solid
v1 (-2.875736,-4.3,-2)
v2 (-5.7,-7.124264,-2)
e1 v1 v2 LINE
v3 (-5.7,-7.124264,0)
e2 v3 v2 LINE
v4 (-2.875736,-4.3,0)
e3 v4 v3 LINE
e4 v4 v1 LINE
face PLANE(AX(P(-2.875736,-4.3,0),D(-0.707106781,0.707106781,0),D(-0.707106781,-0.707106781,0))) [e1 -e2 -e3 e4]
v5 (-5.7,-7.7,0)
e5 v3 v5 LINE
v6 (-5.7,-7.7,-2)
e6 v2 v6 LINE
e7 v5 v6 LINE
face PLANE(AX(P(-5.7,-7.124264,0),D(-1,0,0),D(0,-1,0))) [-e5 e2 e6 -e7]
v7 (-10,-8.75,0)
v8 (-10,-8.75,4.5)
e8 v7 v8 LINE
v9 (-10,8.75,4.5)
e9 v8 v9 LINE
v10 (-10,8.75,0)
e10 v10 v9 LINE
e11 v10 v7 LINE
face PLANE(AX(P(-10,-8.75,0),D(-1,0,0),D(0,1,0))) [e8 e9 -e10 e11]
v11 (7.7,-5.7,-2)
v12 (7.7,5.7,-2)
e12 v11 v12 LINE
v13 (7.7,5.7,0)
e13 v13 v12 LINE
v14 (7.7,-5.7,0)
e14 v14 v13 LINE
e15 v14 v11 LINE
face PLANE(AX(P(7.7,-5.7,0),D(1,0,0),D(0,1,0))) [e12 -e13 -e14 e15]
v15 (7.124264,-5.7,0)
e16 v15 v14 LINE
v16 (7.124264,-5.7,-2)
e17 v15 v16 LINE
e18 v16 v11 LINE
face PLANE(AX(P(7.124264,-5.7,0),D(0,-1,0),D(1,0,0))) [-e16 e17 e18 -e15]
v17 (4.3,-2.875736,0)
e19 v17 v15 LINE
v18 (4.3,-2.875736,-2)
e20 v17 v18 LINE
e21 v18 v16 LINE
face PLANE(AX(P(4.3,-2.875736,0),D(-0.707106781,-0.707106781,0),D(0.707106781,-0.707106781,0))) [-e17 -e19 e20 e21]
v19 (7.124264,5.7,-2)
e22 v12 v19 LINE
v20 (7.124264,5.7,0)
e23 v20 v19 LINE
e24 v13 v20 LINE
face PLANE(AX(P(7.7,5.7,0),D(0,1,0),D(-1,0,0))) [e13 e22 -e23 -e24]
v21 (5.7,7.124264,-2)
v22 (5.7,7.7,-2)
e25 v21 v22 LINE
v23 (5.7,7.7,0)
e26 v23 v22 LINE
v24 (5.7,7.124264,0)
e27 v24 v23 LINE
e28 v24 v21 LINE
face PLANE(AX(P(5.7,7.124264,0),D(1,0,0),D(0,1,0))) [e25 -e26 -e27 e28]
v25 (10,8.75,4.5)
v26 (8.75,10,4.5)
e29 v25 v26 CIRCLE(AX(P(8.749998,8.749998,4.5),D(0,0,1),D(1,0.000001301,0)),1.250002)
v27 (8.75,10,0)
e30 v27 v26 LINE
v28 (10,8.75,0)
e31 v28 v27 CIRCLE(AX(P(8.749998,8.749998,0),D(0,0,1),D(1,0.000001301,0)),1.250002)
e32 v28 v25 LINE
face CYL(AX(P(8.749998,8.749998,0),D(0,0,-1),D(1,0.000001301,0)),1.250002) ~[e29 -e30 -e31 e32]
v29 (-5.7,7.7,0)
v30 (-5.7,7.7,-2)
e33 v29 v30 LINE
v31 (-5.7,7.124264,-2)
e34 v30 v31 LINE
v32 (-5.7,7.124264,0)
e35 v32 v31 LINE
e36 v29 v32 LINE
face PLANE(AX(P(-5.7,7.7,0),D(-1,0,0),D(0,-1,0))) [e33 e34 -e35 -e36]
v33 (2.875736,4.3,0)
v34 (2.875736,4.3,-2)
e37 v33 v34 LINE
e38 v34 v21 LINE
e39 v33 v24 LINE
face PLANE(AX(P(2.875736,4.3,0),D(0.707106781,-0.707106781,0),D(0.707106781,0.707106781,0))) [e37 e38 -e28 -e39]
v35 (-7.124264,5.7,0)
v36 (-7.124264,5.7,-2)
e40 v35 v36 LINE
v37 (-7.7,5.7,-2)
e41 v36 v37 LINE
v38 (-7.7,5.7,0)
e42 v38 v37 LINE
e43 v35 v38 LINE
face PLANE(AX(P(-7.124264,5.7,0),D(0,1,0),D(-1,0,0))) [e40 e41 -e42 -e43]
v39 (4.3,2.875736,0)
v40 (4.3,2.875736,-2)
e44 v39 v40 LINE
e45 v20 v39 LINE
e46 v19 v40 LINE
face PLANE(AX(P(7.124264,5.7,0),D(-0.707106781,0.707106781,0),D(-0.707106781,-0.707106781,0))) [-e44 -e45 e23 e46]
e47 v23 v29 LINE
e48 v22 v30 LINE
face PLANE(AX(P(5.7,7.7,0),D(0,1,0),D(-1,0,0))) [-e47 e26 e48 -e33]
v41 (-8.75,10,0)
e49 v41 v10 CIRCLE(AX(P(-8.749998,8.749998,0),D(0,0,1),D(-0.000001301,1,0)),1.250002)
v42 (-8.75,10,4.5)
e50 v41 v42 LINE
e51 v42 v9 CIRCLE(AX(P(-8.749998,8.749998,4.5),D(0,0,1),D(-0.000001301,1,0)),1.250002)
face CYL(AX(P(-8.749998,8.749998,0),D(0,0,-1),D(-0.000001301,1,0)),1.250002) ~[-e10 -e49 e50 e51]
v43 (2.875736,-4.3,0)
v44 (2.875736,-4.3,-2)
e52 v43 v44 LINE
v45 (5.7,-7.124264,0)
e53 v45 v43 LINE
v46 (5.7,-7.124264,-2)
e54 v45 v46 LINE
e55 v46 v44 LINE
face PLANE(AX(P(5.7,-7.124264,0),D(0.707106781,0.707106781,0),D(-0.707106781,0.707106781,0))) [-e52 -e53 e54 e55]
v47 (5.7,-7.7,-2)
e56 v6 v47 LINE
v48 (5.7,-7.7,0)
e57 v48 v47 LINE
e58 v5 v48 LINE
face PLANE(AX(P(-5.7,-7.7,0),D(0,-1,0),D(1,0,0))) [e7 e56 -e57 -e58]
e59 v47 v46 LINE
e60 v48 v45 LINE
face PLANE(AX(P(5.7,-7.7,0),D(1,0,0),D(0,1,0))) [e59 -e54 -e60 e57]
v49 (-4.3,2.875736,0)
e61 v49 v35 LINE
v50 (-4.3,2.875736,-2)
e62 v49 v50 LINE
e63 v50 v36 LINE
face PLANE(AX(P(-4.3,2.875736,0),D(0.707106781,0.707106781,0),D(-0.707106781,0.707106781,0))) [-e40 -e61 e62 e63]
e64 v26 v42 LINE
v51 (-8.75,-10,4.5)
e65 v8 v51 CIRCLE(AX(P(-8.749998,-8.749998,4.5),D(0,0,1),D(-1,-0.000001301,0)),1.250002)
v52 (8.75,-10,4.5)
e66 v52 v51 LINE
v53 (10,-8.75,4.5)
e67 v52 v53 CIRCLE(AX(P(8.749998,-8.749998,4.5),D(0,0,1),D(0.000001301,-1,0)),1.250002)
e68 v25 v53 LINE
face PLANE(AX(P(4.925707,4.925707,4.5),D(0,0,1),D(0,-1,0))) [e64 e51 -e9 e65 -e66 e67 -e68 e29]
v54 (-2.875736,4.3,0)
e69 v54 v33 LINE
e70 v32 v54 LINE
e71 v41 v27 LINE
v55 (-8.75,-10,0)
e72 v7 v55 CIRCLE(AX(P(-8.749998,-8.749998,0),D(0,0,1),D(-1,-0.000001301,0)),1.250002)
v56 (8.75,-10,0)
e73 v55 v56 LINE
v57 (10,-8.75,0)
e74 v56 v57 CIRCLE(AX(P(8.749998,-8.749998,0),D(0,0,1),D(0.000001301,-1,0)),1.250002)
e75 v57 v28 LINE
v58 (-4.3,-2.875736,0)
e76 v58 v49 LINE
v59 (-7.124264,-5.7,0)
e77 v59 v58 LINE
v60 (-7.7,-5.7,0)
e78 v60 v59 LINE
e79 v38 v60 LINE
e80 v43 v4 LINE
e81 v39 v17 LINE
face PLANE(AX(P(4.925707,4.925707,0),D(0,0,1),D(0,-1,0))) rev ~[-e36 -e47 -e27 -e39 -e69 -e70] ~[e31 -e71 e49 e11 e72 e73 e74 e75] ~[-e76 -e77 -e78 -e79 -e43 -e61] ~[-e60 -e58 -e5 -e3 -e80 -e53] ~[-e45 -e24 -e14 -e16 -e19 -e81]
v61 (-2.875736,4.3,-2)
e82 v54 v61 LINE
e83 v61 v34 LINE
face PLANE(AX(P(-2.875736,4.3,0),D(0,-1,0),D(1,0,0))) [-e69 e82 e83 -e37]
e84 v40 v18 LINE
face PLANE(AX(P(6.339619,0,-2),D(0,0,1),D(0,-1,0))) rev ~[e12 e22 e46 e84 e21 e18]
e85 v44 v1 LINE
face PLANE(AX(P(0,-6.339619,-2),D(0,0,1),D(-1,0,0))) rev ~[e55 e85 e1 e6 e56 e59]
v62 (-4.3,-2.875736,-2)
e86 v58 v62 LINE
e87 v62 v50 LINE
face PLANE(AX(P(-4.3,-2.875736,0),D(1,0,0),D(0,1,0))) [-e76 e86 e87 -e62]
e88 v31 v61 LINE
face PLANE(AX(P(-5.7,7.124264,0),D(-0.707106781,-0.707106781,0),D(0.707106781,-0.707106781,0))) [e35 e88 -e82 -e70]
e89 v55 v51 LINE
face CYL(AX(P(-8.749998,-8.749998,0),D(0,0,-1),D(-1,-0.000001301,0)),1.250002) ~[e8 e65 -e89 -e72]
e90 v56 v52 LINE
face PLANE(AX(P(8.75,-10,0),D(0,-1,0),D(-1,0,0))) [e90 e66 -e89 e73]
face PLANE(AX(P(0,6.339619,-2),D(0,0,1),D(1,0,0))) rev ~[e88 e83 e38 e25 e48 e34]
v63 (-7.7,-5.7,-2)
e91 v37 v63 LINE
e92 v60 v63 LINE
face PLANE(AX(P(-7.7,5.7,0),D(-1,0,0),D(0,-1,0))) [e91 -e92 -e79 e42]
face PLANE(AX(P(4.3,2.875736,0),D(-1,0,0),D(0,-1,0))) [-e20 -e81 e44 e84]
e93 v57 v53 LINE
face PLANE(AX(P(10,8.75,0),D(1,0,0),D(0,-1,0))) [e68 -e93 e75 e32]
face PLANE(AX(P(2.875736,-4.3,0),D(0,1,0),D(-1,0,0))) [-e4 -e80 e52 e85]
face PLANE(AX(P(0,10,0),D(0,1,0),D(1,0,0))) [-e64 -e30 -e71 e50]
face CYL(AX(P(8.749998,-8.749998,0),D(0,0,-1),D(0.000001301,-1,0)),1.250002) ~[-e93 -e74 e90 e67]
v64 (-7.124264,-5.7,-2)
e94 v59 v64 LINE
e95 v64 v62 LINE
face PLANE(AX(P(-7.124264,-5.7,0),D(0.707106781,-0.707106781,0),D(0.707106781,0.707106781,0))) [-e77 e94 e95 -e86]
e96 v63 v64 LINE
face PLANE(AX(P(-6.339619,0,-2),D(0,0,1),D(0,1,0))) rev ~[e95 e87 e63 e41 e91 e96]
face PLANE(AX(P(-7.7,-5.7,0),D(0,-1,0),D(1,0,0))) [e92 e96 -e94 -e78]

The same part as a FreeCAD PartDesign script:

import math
import FreeCAD as App
import Part
import Sketcher
from FreeCAD import Vector
Q = App.Units.Quantity


def add_polygon(sketch, points):
    """Adds a closed chain of lines whose ends are joined by coincident constraints."""
    first, n = sketch.GeometryCount, len(points)
    for a, b in zip(points, points[1:] + points[:1]):
        sketch.addGeometry(Part.LineSegment(App.Vector(*a, 0), App.Vector(*b, 0)), False)
    for i in range(n):
        sketch.addConstraint(Sketcher.Constraint("Coincident", first + i, 2, first + (i + 1) % n, 1))

doc = App.newDocument("Part")
params = doc.addObject("Spreadsheet::Sheet", "Params")
for row, (alias, value) in enumerate([
    ("sketch1_width", "10 mm"),
    ("sketch1_radius", "1.250002 mm"),
    ("pad1_length", "4.5 mm"),
    ("sketch2_width", "11.4 mm"),
    ("pad2_length", "2 mm"),
], start=1):
    params.set(f"A{row}", alias)
    params.set(f"B{row}", "=" + value)
    params.setAlias(f"B{row}", alias)

body = doc.addObject("PartDesign::Body", "Body")

sketch1 = body.newObject("Sketcher::SketchObject", "Sketch")
sketch1.AttachmentSupport = (doc.getObject("XY_Plane"), [""])
sketch1.MapMode = "FlatFace"
sketch1.addGeometry([
    Part.LineSegment(Vector(0, 0, 0), Vector(0, 10, 0)),
    Part.LineSegment(Vector(0, 10, 0), Vector(-8.8, 10, 0)),
    Part.ArcOfCircle(Part.Circle(Vector(-8.7, 8.7, 0), Vector(0, 0, 1), 1.3), math.radians(90), math.radians(180)),
    Part.LineSegment(Vector(-10, 8.8, 0), Vector(-10, 0, 0)),
    Part.LineSegment(Vector(-10, 0, 0), Vector(0, 0, 0)),
], False)
sketch1.addConstraint([
    Sketcher.Constraint("Coincident", 0, 2, 1, 1),
    Sketcher.Constraint("Tangent", 1, 2, 2, 1),
    Sketcher.Constraint("Tangent", 2, 2, 3, 1),
    Sketcher.Constraint("Coincident", 3, 2, 4, 1),
    Sketcher.Constraint("Coincident", 4, 2, 0, 1),
    Sketcher.Constraint("Vertical", 0),
    Sketcher.Constraint("Horizontal", 1),
    Sketcher.Constraint("Vertical", 3),
    Sketcher.Constraint("Horizontal", 4),
    Sketcher.Constraint("Coincident", 4, 2, -1, 1),
    Sketcher.Constraint("Equal", 4, 0),
    Sketcher.Constraint("DistanceX", 4, 1, 4, 2, Q("10 mm")),
    Sketcher.Constraint("Radius", 2, Q("1.250002 mm")),
])
sketch1.setExpression("Constraints[11]", "Params.sketch1_width")
sketch1.setExpression("Constraints[12]", "Params.sketch1_radius")
pad1 = body.newObject("PartDesign::Pad", "Pad")
pad1.Profile = sketch1
pad1.setExpression("Length", "Params.pad1_length")
doc.recompute()

polarpattern = body.newObject("PartDesign::PolarPattern", "PolarPattern")
polarpattern.Originals = [pad1]
polarpattern.Axis = (doc.getObject("Z_Axis"), [""])
polarpattern.Angle = 360
polarpattern.Occurrences = 4
body.Tip = polarpattern

sketch2 = body.newObject("Sketcher::SketchObject", "Sketch001")
sketch2.AttachmentSupport = (doc.getObject("XY_Plane"), [""])
sketch2.MapMode = "FlatFace"
add_polygon(sketch2, [(-5.7, 7.1), (-2.9, 4.3), (2.9, 4.3), (5.7, 7.1), (5.7, 7.7), (-5.7, 7.7)])
sketch2.addConstraint([
    Sketcher.Constraint("Horizontal", 1),
    Sketcher.Constraint("Vertical", 3),
    Sketcher.Constraint("Horizontal", 4),
    Sketcher.Constraint("Vertical", 5),
    Sketcher.Constraint("Symmetric", 2, 2, 5, 2, -2),
    Sketcher.Constraint("Perpendicular", 0, 2),
    Sketcher.Constraint("Equal", 0, 2),
    Sketcher.Constraint("DistanceX", 4, 2, 4, 1, Q("11.4 mm")),
    Sketcher.Constraint("DistanceY", -1, 1, 0, 2, Q("4.3 mm")),
    Sketcher.Constraint("DistanceY", -1, 1, 3, 2, Q("7.7 mm")),
    Sketcher.Constraint("DistanceX", 1, 1, 1, 2, Q("5.751472 mm")),
])
sketch2.setExpression("Constraints[13]", "Params.sketch2_width")
pad2 = body.newObject("PartDesign::Pad", "Pad001")
pad2.Profile = sketch2
pad2.setExpression("Length", "Params.pad2_length")
pad2.Reversed = True
doc.recompute()

polarpattern2 = body.newObject("PartDesign::PolarPattern", "PolarPattern001")
polarpattern2.Originals = [pad2]
polarpattern2.Axis = (doc.getObject("Z_Axis"), [""])
polarpattern2.Angle = 360
polarpattern2.Occurrences = 4
body.Tip = polarpattern2

doc.recompute()
